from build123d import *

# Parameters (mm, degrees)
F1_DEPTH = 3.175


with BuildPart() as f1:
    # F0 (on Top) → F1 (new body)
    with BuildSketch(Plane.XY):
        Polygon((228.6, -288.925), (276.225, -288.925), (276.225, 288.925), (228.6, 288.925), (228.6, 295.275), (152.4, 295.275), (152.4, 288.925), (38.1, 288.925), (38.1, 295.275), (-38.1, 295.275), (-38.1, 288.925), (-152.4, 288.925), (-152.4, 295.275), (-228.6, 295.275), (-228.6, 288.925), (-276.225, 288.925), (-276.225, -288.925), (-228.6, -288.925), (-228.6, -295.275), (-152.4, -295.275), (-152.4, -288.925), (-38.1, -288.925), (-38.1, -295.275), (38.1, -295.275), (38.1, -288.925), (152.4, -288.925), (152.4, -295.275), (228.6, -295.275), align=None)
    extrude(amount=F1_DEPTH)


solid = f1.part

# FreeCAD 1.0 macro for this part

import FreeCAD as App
import Part
import Sketcher
from FreeCAD import Vector
Q = App.Units.Quantity


def add_polygon(sketch, points):
    """Adds a closed chain of lines whose ends are joined by coincident constraints."""
    first, n = sketch.GeometryCount, len(points)
    for a, b in zip(points, points[1:] + points[:1]):
        sketch.addGeometry(Part.LineSegment(App.Vector(*a, 0), App.Vector(*b, 0)), False)
    for i in range(n):
        sketch.addConstraint(Sketcher.Constraint("Coincident", first + i, 2, first + (i + 1) % n, 1))

doc = App.newDocument("Part")
body = doc.addObject("PartDesign::Body", "Body")

# Sketch on XY plane
sketch1 = doc.addObject("Sketcher::SketchObject", "Sketch")
body.addObject(sketch1)
sketch1.AttachmentSupport = (doc.XY_Plane, [""])
sketch1.MapMode = "FlatFace"
add_polygon(sketch1, [(229, -289), (276, -289), (276, 289), (229, 289), (229, 295), (152, 295), (152, 289), (38, 289), (38, 295), (-38, 295), (-38, 289), (-152, 289), (-152, 295), (-229, 295), (-229, 289), (-276, 289), (-276, -289), (-229, -289), (-229, -295), (-152, -295), (-152, -289), (-38, -289), (-38, -295), (38, -295), (38, -289), (152, -289), (152, -295), (229, -295)])  # lines 0-27
sketch1.addConstraint([
    Sketcher.Constraint("Horizontal", 0),
    Sketcher.Constraint("Vertical", 1),
    Sketcher.Constraint("Horizontal", 2),
    Sketcher.Constraint("Vertical", 3),
    Sketcher.Constraint("Horizontal", 4),
    Sketcher.Constraint("Vertical", 5),
    Sketcher.Constraint("Horizontal", 6),
    Sketcher.Constraint("Vertical", 7),
    Sketcher.Constraint("Horizontal", 8),
    Sketcher.Constraint("Vertical", 9),
    Sketcher.Constraint("Horizontal", 10),
    Sketcher.Constraint("Vertical", 11),
    Sketcher.Constraint("Horizontal", 12),
    Sketcher.Constraint("Vertical", 13),
    Sketcher.Constraint("Horizontal", 14),
    Sketcher.Constraint("Vertical", 15),
    Sketcher.Constraint("Horizontal", 16),
    Sketcher.Constraint("Vertical", 17),
    Sketcher.Constraint("Horizontal", 18),
    Sketcher.Constraint("Vertical", 19),
    Sketcher.Constraint("Horizontal", 20),
    Sketcher.Constraint("Vertical", 21),
    Sketcher.Constraint("Horizontal", 22),
    Sketcher.Constraint("Vertical", 23),
    Sketcher.Constraint("Horizontal", 24),
    Sketcher.Constraint("Vertical", 25),
    Sketcher.Constraint("Horizontal", 26),
    Sketcher.Constraint("Vertical", 27),
    Sketcher.Constraint("Symmetric", 0, 2, 14, 2, -1, 1),
    Sketcher.Constraint("Symmetric", 2, 2, 16, 2, -1, 1),
    Sketcher.Constraint("Symmetric", 4, 2, 18, 2, -1, 1),
    Sketcher.Constraint("Symmetric", 6, 2, 20, 2, -1, 1),
    Sketcher.Constraint("Symmetric", 8, 2, 22, 2, -1, 1),
    Sketcher.Constraint("Symmetric", 10, 2, 24, 2, -1, 1),
    Sketcher.Constraint("Symmetric", 12, 2, 26, 2, -1, 1),
    Sketcher.Constraint("Symmetric", 6, 2, 9, 2, -2),
    Sketcher.Constraint("Symmetric", 4, 2, 11, 2, -2),
    Sketcher.Constraint("Symmetric", 2, 2, 13, 2, -2),
    Sketcher.Constraint("Horizontal", 2, 2, 5, 2),
    Sketcher.Constraint("Horizontal", 4, 2, 7, 2),
    Sketcher.Constraint("Equal", 4, 8),
    Sketcher.Constraint("DistanceX", 4, 2, 4, 1, Q("3 in")),
    Sketcher.Constraint("DistanceX", 6, 2, 6, 1, Q("4.5 in")),
    Sketcher.Constraint("DistanceY", 0, 2, 3, 2, Q("23 in")),
    Sketcher.Constraint("DistanceY", 1, 1, 1, 2, Q("22.75 in")),
    Sketcher.Constraint("DistanceX", 0, 1, 0, 2, Q("1.875 in")),
])
pad1 = doc.addObject("PartDesign::Pad", "Pad")
body.addObject(pad1)
pad1.Profile = sketch1
pad1.Length = Q("0.125 in")

doc.recompute()
